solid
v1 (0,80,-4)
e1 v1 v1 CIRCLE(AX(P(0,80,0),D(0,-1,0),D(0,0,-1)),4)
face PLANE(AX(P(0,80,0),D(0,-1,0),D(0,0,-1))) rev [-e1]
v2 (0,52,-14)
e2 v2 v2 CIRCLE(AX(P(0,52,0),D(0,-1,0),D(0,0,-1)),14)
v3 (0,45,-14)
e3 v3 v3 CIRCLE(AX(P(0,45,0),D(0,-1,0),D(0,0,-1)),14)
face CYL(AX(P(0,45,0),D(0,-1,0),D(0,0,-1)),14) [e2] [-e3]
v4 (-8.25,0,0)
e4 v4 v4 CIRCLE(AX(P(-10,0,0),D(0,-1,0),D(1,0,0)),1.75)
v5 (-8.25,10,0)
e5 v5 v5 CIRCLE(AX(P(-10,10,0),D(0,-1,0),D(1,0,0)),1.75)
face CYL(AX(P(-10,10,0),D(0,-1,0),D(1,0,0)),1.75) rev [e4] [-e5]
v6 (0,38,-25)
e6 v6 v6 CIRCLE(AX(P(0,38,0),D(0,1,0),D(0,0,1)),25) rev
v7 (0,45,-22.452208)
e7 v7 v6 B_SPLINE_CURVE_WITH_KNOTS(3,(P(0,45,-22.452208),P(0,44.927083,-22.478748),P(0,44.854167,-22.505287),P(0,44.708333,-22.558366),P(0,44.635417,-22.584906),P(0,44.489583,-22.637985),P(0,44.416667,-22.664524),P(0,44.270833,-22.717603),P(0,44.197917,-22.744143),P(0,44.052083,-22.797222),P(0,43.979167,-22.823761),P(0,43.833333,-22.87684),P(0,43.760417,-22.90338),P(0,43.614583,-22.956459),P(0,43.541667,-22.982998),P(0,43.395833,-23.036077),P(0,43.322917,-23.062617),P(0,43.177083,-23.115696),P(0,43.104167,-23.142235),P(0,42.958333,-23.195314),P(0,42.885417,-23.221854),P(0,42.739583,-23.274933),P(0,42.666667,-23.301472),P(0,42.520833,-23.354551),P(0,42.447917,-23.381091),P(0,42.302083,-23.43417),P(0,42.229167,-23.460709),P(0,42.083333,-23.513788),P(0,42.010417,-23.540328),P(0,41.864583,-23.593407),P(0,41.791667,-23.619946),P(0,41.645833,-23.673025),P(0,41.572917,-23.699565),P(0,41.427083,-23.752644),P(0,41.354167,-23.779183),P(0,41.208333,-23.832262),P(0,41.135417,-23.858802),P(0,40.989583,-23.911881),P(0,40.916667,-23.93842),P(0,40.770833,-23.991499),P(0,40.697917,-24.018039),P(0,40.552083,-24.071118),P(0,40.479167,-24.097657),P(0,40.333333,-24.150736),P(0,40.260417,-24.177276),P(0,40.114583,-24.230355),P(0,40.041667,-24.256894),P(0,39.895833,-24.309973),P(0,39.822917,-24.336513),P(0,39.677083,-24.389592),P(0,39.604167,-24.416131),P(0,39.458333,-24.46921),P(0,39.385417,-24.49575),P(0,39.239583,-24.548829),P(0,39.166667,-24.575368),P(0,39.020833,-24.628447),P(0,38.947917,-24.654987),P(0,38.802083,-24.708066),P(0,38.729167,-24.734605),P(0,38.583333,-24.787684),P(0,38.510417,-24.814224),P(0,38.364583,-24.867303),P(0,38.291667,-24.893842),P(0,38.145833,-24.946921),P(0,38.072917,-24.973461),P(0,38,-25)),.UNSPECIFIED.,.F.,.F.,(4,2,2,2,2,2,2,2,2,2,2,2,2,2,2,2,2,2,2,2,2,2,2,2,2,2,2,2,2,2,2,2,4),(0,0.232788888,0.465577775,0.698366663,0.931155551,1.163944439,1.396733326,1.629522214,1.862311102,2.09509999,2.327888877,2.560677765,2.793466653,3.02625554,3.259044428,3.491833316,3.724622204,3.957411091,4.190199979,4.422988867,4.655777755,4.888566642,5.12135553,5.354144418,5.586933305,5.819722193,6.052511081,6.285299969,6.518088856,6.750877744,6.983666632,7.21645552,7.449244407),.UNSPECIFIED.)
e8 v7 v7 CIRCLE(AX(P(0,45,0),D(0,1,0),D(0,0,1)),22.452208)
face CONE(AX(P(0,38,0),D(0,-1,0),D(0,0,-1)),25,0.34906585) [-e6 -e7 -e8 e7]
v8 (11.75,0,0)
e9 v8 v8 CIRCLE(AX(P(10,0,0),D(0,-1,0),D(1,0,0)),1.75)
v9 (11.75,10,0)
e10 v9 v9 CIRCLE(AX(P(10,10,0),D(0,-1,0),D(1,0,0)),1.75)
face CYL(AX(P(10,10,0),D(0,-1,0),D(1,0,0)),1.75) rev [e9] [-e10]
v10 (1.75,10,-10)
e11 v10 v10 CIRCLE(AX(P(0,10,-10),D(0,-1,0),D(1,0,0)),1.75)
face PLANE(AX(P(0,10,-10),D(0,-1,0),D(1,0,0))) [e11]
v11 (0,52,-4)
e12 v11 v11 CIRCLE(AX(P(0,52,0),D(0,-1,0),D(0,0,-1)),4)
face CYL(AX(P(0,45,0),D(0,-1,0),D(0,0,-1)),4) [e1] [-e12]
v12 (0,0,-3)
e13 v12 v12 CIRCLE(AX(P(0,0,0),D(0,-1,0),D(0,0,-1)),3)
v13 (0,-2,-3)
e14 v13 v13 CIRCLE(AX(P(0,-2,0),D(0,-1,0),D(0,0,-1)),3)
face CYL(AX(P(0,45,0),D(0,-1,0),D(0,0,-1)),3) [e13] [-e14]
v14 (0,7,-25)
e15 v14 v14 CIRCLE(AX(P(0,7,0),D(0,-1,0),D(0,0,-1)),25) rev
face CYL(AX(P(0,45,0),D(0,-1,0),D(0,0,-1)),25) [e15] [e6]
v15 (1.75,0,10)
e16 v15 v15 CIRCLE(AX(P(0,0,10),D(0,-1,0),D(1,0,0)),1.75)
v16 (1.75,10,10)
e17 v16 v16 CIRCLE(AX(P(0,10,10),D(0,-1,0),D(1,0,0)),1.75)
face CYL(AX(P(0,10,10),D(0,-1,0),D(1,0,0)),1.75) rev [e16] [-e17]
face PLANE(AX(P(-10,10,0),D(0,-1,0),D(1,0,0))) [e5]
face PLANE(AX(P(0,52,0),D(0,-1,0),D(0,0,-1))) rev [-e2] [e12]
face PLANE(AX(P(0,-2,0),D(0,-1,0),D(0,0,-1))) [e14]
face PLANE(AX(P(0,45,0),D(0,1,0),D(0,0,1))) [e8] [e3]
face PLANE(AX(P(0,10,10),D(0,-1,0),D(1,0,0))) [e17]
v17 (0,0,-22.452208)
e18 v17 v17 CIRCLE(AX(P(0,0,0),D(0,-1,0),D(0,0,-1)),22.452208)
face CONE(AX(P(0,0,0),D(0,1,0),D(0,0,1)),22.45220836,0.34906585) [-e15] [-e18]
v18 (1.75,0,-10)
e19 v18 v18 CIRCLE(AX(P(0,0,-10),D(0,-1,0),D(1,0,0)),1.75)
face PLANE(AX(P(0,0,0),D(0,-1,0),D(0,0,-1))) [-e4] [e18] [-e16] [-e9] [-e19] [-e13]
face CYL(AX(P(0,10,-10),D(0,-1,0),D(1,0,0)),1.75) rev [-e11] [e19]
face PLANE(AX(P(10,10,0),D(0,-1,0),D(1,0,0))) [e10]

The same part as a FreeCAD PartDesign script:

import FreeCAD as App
import Part
import Sketcher

V = App.Vector


def edges_at(feature, points):
    """Names of the edges that pass closest to the given points."""
    edges = feature.Shape.Edges
    near = lambda p: min(range(len(edges)), key=lambda i: edges[i].distToShape(Part.Vertex(*p))[0])
    return sorted({f"Edge{near(p) + 1}" for p in points})


def add_polygon(sketch, points):
    """Adds a closed chain of lines whose ends are joined by coincident constraints."""
    first, n = sketch.GeometryCount, len(points)
    for a, b in zip(points, points[1:] + points[:1]):
        sketch.addGeometry(Part.LineSegment(App.Vector(*a, 0), App.Vector(*b, 0)), False)
    for i in range(n):
        sketch.addConstraint(Sketcher.Constraint("Coincident", first + i, 2, first + (i + 1) % n, 1))

doc = App.newDocument("Part")
body = doc.addObject("PartDesign::Body", "Body")

# Sketch on XY plane
sketch1 = doc.addObject("Sketcher::SketchObject", "Sketch")
body.addObject(sketch1)
sketch1.AttachmentSupport = (doc.XY_Plane, [""])
sketch1.MapMode = "FlatFace"
add_polygon(sketch1, [(0, -2), (3, -2), (3, 0), (25, 0), (25, 45), (14, 45), (14, 52), (4, 52), (4, 80), (0, 80)])  # lines 0-9
sketch1.addConstraint(Sketcher.Constraint("Horizontal", 0))
sketch1.addConstraint(Sketcher.Constraint("Vertical", 1))
sketch1.addConstraint(Sketcher.Constraint("Horizontal", 2))
sketch1.addConstraint(Sketcher.Constraint("Vertical", 3))
sketch1.addConstraint(Sketcher.Constraint("Horizontal", 4))
sketch1.addConstraint(Sketcher.Constraint("Vertical", 5))
sketch1.addConstraint(Sketcher.Constraint("Horizontal", 6))
sketch1.addConstraint(Sketcher.Constraint("Vertical", 7))
sketch1.addConstraint(Sketcher.Constraint("Horizontal", 8))
sketch1.addConstraint(Sketcher.Constraint("Vertical", 9))
sketch1.addConstraint(Sketcher.Constraint("PointOnObject", 1, 2, -1))
sketch1.addConstraint(Sketcher.Constraint("PointOnObject", 8, 2, -2))
sketch1.addConstraint(Sketcher.Constraint("DistanceX", 0, 1, 0, 2, 3.0))
sketch1.addConstraint(Sketcher.Constraint("DistanceX", 2, 1, 2, 2, 22.0))
sketch1.addConstraint(Sketcher.Constraint("DistanceX", 4, 2, 4, 1, 11.0))
sketch1.addConstraint(Sketcher.Constraint("DistanceX", 6, 2, 6, 1, 10.0))
sketch1.addConstraint(Sketcher.Constraint("DistanceY", 1, 1, 1, 2, 2.0))
sketch1.addConstraint(Sketcher.Constraint("DistanceY", 3, 1, 3, 2, 45.0))
sketch1.addConstraint(Sketcher.Constraint("DistanceY", 5, 1, 5, 2, 7.0))
sketch1.addConstraint(Sketcher.Constraint("DistanceY", 7, 1, 7, 2, 28.0))
revolution = doc.addObject("PartDesign::Revolution", "Revolution")
body.addObject(revolution)
revolution.Profile = sketch1
revolution.ReferenceAxis = (sketch1, ["V_Axis"])
revolution.Angle = 360
doc.recompute()

chamfer = doc.addObject("PartDesign::Chamfer", "Chamfer")
body.addObject(chamfer)
chamfer.Base = (revolution, edges_at(revolution, [(0, 0, 25)]))
chamfer.ChamferType = "Two distances"
chamfer.Size = 7
chamfer.Size2 = 2.547792
chamfer.FlipDirection = True
doc.recompute()

chamfer2 = doc.addObject("PartDesign::Chamfer", "Chamfer001")
body.addObject(chamfer2)
chamfer2.Base = (chamfer, edges_at(chamfer, [(0, 45, 25)]))
chamfer2.ChamferType = "Two distances"
chamfer2.Size = 7
chamfer2.Size2 = 2.547792

# Sketch on XZ plane
sketch2 = doc.addObject("Sketcher::SketchObject", "Sketch001")
body.addObject(sketch2)
sketch2.AttachmentSupport = (doc.XZ_Plane, [""])
sketch2.MapMode = "FlatFace"
sketch2.addGeometry(Part.Circle(V(0, 10, 0), V(0, 0, 1), 1.8), False)
sketch2.addGeometry(Part.Circle(V(10, 0, 0), V(0, 0, 1), 1.8), False)
sketch2.addGeometry(Part.Circle(V(0, -10, 0), V(0, 0, 1), 1.8), False)
sketch2.addGeometry(Part.Circle(V(-10, 0, 0), V(0, 0, 1), 1.8), False)
sketch2.addConstraint(Sketcher.Constraint("Equal", 0, 1))
sketch2.addConstraint(Sketcher.Constraint("Equal", 1, 2))
sketch2.addConstraint(Sketcher.Constraint("Equal", 2, 3))
sketch2.addConstraint(Sketcher.Constraint("Symmetric", 0, 3, 2, 3, -1, 1))
sketch2.addConstraint(Sketcher.Constraint("Symmetric", 1, 3, 3, 3, -1, 1))
sketch2.addConstraint(Sketcher.Constraint("PointOnObject", 0, 3, -2))
sketch2.addConstraint(Sketcher.Constraint("PointOnObject", 1, 3, -1))
sketch2.addConstraint(Sketcher.Constraint("Diameter", 0, 3.5))
sketch2.addConstraint(Sketcher.Constraint("DistanceY", -1, 1, 0, 3, 10.0))
sketch2.addConstraint(Sketcher.Constraint("DistanceX", -1, 1, 1, 3, 10.0))
pocket1 = doc.addObject("PartDesign::Pocket", "Pocket")
body.addObject(pocket1)
pocket1.Profile = sketch2
pocket1.Length = 10

doc.recompute()
